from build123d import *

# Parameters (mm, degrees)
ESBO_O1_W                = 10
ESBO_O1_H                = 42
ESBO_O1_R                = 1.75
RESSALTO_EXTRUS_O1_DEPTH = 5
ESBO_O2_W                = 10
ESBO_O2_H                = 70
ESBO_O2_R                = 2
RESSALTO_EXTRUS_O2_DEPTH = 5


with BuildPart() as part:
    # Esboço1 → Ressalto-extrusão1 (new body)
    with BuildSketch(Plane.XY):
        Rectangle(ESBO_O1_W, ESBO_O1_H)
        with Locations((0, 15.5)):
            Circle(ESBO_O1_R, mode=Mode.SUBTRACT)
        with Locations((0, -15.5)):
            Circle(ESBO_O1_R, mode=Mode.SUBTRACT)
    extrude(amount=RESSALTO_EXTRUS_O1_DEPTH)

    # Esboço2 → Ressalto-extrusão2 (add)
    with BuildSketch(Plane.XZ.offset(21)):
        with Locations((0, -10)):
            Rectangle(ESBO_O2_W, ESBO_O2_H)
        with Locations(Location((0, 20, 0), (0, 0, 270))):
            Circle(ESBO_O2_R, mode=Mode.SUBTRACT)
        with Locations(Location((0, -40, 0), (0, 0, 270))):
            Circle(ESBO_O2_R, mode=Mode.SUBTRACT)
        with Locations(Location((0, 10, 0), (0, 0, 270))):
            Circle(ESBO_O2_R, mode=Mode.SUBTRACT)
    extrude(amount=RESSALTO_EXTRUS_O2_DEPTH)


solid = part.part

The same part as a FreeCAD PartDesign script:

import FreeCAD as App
import Part
import Sketcher
Q = App.Units.Quantity


def add_polygon(sketch, points):
    """Adds a closed chain of lines whose ends are joined by coincident constraints."""
    first, n = sketch.GeometryCount, len(points)
    for a, b in zip(points, points[1:] + points[:1]):
        sketch.addGeometry(Part.LineSegment(App.Vector(*a, 0), App.Vector(*b, 0)), False)
    for i in range(n):
        sketch.addConstraint(Sketcher.Constraint("Coincident", first + i, 2, first + (i + 1) % n, 1))

doc = App.newDocument("Part")
params = doc.addObject("Spreadsheet::Sheet", "Params")
for row, (alias, value) in enumerate([
    ("sketch1_diameter", "3.5 mm"),
    ("sketch1_width", "10 mm"),
    ("sketch1_height", "42 mm"),
    ("pad1_length", "5 mm"),
    ("sketch2_diameter", "4 mm"),
    ("sketch2_width", "10 mm"),
    ("sketch2_height", "70 mm"),
    ("pad2_length", "5 mm"),
], start=1):
    params.set(f"A{row}", alias)
    params.set(f"B{row}", "=" + value)
    params.setAlias(f"B{row}", alias)

body = doc.addObject("PartDesign::Body", "Body")

# Sketch on XY plane
sketch1 = body.newObject("Sketcher::SketchObject", "Sketch")
sketch1.AttachmentSupport = (doc.getObject("XY_Plane"), [""])
sketch1.MapMode = "FlatFace"
add_polygon(sketch1, [(-5, 21), (-5, -21), (5, -21), (5, 21)])  # lines 0-3
sketch1.addGeometry(Part.Circle(App.Vector(0, -15.5, 0), App.Vector(0, 0, 1), 1.8), False)  # 4
sketch1.addGeometry(Part.Circle(App.Vector(0, 15.5, 0), App.Vector(0, 0, 1), 1.8), False)  # 5
sketch1.addConstraint(Sketcher.Constraint("Vertical", 0))
sketch1.addConstraint(Sketcher.Constraint("Horizontal", 1))
sketch1.addConstraint(Sketcher.Constraint("Vertical", 2))
sketch1.addConstraint(Sketcher.Constraint("Horizontal", 3))
sketch1.addConstraint(Sketcher.Constraint("Equal", 4, 5))
sketch1.addConstraint(Sketcher.Constraint("Symmetric", 4, 3, 5, 3, -1, 1))
sketch1.addConstraint(Sketcher.Constraint("Symmetric", 0, 2, 2, 2, -1, 1))
sketch1.addConstraint(Sketcher.Constraint("PointOnObject", 4, 3, -2))
sketch1.addConstraint(Sketcher.Constraint("Diameter", 4, Q("3.5 mm")))
sketch1.addConstraint(Sketcher.Constraint("DistanceX", 1, 1, 1, 2, Q("10 mm")))
sketch1.addConstraint(Sketcher.Constraint("DistanceY", 0, 2, 0, 1, Q("42 mm")))
sketch1.addConstraint(Sketcher.Constraint("DistanceY", 4, 3, 5, 3, Q("31 mm")))
sketch1.setExpression("Constraints[12]", "Params.sketch1_diameter")
sketch1.setExpression("Constraints[13]", "Params.sketch1_width")
sketch1.setExpression("Constraints[14]", "Params.sketch1_height")
pad1 = body.newObject("PartDesign::Pad", "Pad")
pad1.Profile = sketch1
pad1.setExpression("Length", "Params.pad1_length")

# Sketch on XZ plane
sketch2 = body.newObject("Sketcher::SketchObject", "Sketch001")
sketch2.AttachmentSupport = (doc.getObject("XZ_Plane"), [""])
sketch2.MapMode = "FlatFace"
sketch2.AttachmentOffset = App.Placement(App.Vector(0, 0, 21), App.Rotation())
add_polygon(sketch2, [(-5, 25), (-5, -45), (5, -45), (5, 25)])  # lines 0-3
sketch2.addGeometry(Part.Circle(App.Vector(0, -40, 0), App.Vector(0, 0, 1), 2), False)  # 4
sketch2.addGeometry(Part.Circle(App.Vector(0, 10, 0), App.Vector(0, 0, 1), 2), False)  # 5
sketch2.addGeometry(Part.Circle(App.Vector(0, 20, 0), App.Vector(0, 0, 1), 2), False)  # 6
sketch2.addConstraint(Sketcher.Constraint("Vertical", 0))
sketch2.addConstraint(Sketcher.Constraint("Horizontal", 1))
sketch2.addConstraint(Sketcher.Constraint("Vertical", 2))
sketch2.addConstraint(Sketcher.Constraint("Horizontal", 3))
sketch2.addConstraint(Sketcher.Constraint("Equal", 4, 5))
sketch2.addConstraint(Sketcher.Constraint("Equal", 5, 6))
sketch2.addConstraint(Sketcher.Constraint("PointOnObject", 4, 3, -2))
sketch2.addConstraint(Sketcher.Constraint("PointOnObject", 5, 3, -2))
sketch2.addConstraint(Sketcher.Constraint("PointOnObject", 6, 3, -2))
sketch2.addConstraint(Sketcher.Constraint("Diameter", 4, Q("4 mm")))
sketch2.addConstraint(Sketcher.Constraint("DistanceX", 1, 1, 1, 2, Q("10 mm")))
sketch2.addConstraint(Sketcher.Constraint("DistanceY", 0, 2, 0, 1, Q("70 mm")))
sketch2.addConstraint(Sketcher.Constraint("DistanceY", 4, 3, -1, 1, Q("40 mm")))
sketch2.addConstraint(Sketcher.Constraint("DistanceY", -1, 1, 5, 3, Q("10 mm")))
sketch2.addConstraint(Sketcher.Constraint("DistanceY", -1, 1, 6, 3, Q("20 mm")))
sketch2.addConstraint(Sketcher.Constraint("DistanceX", 0, 2, -1, 1, Q("5 mm")))
sketch2.addConstraint(Sketcher.Constraint("DistanceY", 0, 2, -1, 1, Q("45 mm")))
sketch2.setExpression("Constraints[13]", "Params.sketch2_diameter")
sketch2.setExpression("Constraints[14]", "Params.sketch2_width")
sketch2.setExpression("Constraints[15]", "Params.sketch2_height")
pad2 = body.newObject("PartDesign::Pad", "Pad001")
pad2.Profile = sketch2
pad2.setExpression("Length", "Params.pad2_length")

doc.recompute()
